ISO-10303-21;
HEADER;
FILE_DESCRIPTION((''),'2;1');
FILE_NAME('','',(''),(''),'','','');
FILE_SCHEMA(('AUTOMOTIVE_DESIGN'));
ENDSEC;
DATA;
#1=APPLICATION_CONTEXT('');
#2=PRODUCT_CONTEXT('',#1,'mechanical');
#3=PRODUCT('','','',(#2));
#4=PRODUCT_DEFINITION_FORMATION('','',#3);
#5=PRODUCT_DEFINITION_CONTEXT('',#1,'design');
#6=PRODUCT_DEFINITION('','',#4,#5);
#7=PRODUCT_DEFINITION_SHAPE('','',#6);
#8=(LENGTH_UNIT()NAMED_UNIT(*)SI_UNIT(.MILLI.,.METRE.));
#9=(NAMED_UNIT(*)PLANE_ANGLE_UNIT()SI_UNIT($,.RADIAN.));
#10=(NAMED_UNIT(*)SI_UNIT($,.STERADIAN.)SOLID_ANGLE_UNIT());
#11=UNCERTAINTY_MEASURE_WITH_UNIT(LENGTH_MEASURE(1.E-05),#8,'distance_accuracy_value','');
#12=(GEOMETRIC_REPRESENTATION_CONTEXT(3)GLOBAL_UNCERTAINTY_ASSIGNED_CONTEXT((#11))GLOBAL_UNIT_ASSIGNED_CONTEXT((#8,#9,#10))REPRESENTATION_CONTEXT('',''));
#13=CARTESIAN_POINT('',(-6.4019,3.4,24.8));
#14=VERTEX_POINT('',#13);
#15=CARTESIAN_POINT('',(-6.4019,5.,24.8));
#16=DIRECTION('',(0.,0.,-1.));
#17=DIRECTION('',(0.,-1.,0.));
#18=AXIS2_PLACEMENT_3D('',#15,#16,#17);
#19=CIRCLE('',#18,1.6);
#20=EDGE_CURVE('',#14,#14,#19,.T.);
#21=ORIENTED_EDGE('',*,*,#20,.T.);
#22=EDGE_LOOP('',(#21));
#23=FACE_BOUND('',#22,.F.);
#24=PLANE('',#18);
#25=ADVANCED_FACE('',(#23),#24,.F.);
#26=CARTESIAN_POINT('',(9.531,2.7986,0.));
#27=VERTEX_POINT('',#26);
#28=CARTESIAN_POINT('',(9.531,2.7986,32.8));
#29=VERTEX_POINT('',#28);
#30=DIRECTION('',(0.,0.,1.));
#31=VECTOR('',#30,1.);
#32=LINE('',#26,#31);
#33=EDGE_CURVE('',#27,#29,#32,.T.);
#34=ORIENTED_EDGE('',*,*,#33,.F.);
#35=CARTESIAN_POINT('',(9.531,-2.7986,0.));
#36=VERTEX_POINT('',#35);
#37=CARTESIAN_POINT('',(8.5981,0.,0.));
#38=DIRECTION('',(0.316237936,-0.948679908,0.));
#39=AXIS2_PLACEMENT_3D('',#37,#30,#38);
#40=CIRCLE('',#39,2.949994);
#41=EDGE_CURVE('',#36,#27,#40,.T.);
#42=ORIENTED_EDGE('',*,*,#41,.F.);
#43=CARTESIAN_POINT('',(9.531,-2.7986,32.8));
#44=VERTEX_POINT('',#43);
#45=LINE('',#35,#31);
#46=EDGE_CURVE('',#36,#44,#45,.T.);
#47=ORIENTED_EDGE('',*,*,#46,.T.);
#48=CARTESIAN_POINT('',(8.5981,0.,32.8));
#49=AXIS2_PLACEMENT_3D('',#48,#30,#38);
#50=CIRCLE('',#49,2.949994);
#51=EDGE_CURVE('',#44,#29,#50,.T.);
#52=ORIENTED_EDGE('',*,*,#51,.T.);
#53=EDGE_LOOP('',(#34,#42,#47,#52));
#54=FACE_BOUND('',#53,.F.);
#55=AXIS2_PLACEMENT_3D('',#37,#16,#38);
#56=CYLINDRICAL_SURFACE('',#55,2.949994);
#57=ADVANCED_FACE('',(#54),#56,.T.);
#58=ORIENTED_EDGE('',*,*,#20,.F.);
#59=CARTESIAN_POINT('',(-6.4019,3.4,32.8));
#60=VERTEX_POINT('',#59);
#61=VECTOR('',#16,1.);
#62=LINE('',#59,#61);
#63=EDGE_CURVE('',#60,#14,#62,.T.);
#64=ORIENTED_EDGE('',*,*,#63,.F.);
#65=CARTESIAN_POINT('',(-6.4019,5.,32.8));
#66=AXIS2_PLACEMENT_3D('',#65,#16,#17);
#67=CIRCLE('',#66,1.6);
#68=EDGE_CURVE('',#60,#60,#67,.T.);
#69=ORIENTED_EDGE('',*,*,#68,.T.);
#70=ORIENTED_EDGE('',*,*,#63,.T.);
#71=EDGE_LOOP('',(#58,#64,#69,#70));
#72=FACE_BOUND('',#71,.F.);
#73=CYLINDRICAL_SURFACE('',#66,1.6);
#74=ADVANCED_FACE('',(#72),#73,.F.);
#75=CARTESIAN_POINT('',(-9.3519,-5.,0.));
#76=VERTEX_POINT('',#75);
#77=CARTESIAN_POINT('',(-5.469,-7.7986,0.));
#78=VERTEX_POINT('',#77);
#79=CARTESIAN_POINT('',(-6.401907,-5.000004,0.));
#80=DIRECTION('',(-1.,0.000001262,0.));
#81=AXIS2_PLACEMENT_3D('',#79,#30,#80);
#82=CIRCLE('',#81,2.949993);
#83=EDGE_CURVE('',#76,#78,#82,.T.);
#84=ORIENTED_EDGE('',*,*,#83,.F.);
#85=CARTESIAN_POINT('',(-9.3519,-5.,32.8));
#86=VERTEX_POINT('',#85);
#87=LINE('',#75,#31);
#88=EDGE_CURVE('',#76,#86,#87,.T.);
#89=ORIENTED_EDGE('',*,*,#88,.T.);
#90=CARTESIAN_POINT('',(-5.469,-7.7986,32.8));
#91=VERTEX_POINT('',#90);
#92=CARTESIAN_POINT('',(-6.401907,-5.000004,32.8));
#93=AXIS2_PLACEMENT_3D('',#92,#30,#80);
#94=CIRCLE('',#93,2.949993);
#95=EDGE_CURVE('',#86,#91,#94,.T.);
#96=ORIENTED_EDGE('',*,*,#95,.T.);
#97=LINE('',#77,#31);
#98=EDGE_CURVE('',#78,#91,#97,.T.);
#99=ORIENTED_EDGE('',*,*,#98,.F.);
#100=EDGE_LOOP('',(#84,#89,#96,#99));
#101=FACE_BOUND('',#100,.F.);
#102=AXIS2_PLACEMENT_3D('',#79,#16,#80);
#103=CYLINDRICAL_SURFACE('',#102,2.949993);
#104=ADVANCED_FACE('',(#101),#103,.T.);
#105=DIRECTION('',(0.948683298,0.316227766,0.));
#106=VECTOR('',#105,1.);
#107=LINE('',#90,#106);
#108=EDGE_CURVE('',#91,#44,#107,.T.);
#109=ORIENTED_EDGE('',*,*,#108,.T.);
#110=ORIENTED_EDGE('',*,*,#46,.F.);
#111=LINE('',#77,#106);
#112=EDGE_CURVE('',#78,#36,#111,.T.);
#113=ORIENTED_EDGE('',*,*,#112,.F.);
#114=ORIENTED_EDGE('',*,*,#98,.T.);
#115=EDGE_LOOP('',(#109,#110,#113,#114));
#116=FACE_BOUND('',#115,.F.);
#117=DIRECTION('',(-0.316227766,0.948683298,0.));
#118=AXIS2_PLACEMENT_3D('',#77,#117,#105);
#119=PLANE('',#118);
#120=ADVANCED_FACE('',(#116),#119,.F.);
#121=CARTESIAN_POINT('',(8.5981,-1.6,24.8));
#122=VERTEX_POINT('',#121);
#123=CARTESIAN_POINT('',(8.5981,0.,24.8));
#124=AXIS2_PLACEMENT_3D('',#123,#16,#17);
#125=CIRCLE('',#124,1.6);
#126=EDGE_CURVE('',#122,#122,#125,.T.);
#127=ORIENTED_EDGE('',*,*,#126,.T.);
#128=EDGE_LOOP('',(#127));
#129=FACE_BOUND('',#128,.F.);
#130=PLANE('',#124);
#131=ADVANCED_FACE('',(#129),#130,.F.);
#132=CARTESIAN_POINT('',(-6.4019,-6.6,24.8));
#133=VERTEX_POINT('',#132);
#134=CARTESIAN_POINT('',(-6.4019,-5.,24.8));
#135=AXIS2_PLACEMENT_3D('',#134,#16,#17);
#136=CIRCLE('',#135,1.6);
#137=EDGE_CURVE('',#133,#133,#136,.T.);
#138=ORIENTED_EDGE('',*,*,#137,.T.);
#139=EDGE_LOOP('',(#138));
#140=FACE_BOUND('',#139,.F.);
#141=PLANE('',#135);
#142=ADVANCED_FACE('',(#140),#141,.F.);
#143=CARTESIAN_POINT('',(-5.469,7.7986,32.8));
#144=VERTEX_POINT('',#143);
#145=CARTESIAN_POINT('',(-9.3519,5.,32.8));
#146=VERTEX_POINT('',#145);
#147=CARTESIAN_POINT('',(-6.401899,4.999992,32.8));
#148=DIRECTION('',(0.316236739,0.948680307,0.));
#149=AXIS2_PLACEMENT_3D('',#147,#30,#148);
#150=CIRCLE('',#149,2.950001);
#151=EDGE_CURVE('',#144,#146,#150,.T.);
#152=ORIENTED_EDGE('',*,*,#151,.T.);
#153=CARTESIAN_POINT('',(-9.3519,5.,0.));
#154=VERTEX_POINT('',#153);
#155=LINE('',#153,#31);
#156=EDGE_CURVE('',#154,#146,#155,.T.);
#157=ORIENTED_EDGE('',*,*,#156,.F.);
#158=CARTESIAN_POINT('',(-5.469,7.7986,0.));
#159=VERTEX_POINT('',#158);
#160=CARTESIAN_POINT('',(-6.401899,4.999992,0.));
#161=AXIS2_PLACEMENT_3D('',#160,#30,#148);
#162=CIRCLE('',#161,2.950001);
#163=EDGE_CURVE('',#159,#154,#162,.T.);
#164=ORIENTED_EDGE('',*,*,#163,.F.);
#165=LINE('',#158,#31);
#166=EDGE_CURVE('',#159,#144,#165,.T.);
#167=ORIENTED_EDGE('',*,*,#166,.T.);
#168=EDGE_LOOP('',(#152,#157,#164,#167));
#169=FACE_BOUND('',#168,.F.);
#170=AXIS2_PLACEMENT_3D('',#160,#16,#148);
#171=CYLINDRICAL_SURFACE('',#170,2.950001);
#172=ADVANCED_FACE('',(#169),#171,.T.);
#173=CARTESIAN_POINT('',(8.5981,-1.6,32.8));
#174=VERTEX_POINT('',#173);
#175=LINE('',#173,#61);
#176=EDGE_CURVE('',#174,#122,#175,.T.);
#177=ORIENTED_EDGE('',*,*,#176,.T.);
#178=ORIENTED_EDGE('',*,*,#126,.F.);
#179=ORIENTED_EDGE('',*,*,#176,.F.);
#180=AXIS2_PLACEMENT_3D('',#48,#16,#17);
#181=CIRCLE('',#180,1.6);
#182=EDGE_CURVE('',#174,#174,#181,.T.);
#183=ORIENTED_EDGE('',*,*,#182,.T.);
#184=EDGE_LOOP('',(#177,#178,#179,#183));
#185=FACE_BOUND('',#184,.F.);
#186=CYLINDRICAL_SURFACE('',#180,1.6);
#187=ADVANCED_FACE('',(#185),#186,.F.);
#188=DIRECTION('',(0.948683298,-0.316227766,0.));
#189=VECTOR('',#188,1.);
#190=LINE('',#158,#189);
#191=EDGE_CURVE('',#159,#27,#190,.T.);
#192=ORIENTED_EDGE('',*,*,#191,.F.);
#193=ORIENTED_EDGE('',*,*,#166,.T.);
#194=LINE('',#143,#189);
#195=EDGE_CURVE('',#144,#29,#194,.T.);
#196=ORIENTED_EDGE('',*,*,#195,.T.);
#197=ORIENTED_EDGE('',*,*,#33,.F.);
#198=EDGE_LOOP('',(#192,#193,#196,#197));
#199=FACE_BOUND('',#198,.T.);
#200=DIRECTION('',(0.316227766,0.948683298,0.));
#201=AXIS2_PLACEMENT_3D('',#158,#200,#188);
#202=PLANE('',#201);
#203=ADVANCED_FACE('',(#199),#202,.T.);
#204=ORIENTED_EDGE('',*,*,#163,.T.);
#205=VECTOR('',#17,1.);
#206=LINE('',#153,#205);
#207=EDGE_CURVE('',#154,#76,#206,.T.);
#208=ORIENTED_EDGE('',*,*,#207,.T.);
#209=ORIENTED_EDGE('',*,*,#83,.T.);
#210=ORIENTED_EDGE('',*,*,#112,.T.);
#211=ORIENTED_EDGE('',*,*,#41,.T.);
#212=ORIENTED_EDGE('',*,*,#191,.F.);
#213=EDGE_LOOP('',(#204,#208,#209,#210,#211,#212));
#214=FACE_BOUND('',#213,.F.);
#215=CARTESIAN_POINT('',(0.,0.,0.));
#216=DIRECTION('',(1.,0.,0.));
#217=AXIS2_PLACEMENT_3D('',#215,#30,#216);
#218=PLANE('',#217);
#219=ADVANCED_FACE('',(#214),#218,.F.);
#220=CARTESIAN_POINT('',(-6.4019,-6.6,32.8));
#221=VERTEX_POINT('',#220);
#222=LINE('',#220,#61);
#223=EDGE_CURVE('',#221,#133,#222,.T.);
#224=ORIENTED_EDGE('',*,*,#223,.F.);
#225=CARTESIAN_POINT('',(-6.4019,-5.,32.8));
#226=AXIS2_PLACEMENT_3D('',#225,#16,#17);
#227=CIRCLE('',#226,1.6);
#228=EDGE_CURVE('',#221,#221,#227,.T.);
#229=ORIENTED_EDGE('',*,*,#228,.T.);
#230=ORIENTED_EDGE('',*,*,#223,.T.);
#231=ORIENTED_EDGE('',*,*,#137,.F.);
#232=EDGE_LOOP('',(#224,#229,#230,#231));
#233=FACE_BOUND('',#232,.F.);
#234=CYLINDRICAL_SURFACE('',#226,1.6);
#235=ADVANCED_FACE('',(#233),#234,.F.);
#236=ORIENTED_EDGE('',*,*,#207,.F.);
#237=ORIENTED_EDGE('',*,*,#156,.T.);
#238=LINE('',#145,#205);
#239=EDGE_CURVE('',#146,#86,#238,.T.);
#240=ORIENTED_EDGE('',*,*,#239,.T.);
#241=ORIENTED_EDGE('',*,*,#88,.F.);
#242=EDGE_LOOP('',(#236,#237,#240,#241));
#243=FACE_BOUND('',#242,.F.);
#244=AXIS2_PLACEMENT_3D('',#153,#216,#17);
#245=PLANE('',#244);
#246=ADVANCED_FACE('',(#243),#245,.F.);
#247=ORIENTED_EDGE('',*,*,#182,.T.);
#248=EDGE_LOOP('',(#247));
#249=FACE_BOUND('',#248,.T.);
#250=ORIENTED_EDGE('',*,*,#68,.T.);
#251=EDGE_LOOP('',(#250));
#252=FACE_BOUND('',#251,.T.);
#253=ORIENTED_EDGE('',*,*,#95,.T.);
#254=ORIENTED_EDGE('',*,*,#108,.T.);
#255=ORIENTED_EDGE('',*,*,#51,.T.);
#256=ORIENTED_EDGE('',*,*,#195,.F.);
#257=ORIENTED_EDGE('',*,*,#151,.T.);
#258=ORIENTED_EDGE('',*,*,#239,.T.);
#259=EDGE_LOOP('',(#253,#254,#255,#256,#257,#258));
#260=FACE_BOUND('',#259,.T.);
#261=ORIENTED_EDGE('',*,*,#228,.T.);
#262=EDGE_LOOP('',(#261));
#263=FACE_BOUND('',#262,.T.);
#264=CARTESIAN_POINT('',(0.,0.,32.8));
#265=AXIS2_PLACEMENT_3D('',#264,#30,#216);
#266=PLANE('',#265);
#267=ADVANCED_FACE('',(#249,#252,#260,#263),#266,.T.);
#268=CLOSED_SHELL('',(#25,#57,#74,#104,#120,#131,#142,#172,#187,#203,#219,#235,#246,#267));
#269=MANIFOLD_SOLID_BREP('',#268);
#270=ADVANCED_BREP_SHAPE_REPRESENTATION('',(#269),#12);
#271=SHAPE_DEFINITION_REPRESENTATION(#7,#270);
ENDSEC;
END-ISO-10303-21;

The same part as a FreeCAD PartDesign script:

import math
import FreeCAD as App
import Part
import Sketcher

V = App.Vector
Q = App.Units.Quantity

doc = App.newDocument("Part")
body = doc.addObject("PartDesign::Body", "Body")

sketch1 = body.newObject("Sketcher::SketchObject", "Sketch")
sketch1.AttachmentSupport = (doc.getObject("XY_Plane"), [""])
sketch1.MapMode = "FlatFace"
sketch1.addGeometry(Part.ArcOfCircle(Part.Circle(V(-6.4, 5, 0), V(0, 0, 1), 3), math.radians(72), math.radians(180)), False)
sketch1.addGeometry(Part.LineSegment(V(-9.4, 5, 0), V(-9.4, -5, 0)), False)
sketch1.addGeometry(Part.ArcOfCircle(Part.Circle(V(-6.4, -5, 0), V(0, 0, 1), 2.9), math.radians(180), math.radians(288)), False)
sketch1.addGeometry(Part.LineSegment(V(-5.5, -7.8, 0), V(9.5, -2.8, 0)), False)
sketch1.addGeometry(Part.ArcOfCircle(Part.Circle(V(8.6, 0, 0), V(0, 0, 1), 2.9), math.radians(-72), math.radians(72)), False)
sketch1.addGeometry(Part.LineSegment(V(9.5, 2.8, 0), V(-5.5, 7.8, 0)), False)
sketch1.addConstraint(Sketcher.Constraint("Tangent", 0, 2, 1, 1))
sketch1.addConstraint(Sketcher.Constraint("Tangent", 1, 2, 2, 1))
sketch1.addConstraint(Sketcher.Constraint("Tangent", 2, 2, 3, 1))
sketch1.addConstraint(Sketcher.Constraint("Tangent", 3, 2, 4, 1))
sketch1.addConstraint(Sketcher.Constraint("Tangent", 4, 2, 5, 1))
sketch1.addConstraint(Sketcher.Constraint("Tangent", 5, 2, 0, 1))
sketch1.addConstraint(Sketcher.Constraint("Vertical", 1))
sketch1.addConstraint(Sketcher.Constraint("Equal", 0, 2))
sketch1.addConstraint(Sketcher.Constraint("Equal", 2, 4))
sketch1.addConstraint(Sketcher.Constraint("Symmetric", 3, 2, 4, 2, -1))
sketch1.addConstraint(Sketcher.Constraint("DistanceY", 1, 2, 1, 1, Q("10 mm")))
sketch1.addConstraint(Sketcher.Constraint("Radius", 0, Q("2.95 mm")))
sketch1.addConstraint(Sketcher.Constraint("DistanceX", 0, 3, 4, 3, Q("15 mm")))
sketch1.addConstraint(Sketcher.Constraint("DistanceX", 0, 3, -1, 1, Q("6.402 mm")))
pad1 = body.newObject("PartDesign::Pad", "Pad")
pad1.Profile = sketch1
pad1.Length = 32.8

sketch2 = body.newObject("Sketcher::SketchObject", "Sketch001")
sketch2.AttachmentSupport = (doc.getObject("XY_Plane"), [""])
sketch2.MapMode = "FlatFace"
sketch2.AttachmentOffset = App.Placement(V(0, 0, 32.8), App.Rotation())
sketch2.addGeometry(Part.Circle(V(-6.4, 5, 0), V(0, 0, 1), 1.6), False)
sketch2.addGeometry(Part.Circle(V(-6.4, -5, 0), V(0, 0, 1), 1.6), False)
sketch2.addGeometry(Part.Circle(V(8.6, 0, 0), V(0, 0, 1), 1.6), False)
sketch2.addConstraint(Sketcher.Constraint("Equal", 0, 1))
sketch2.addConstraint(Sketcher.Constraint("Equal", 1, 2))
sketch2.addConstraint(Sketcher.Constraint("Symmetric", 0, 3, 1, 3, -1))
sketch2.addConstraint(Sketcher.Constraint("PointOnObject", 2, 3, -1))
sketch2.addConstraint(Sketcher.Constraint("Diameter", 0, Q("3.2 mm")))
sketch2.addConstraint(Sketcher.Constraint("DistanceY", -1, 1, 0, 3, Q("5 mm")))
sketch2.addConstraint(Sketcher.Constraint("DistanceX", 0, 3, 2, 3, Q("15 mm")))
sketch2.addConstraint(Sketcher.Constraint("DistanceX", 0, 3, -1, 1, Q("6.402 mm")))
doc.recompute()
hole = body.newObject("PartDesign::Hole", "Hole")
hole.Profile = sketch2
hole.ThreadType = "None"
hole.Diameter = 3.2
hole.DepthType = "Dimension"
hole.Depth = 8
hole.DrillPoint = "Flat"

doc.recompute()
